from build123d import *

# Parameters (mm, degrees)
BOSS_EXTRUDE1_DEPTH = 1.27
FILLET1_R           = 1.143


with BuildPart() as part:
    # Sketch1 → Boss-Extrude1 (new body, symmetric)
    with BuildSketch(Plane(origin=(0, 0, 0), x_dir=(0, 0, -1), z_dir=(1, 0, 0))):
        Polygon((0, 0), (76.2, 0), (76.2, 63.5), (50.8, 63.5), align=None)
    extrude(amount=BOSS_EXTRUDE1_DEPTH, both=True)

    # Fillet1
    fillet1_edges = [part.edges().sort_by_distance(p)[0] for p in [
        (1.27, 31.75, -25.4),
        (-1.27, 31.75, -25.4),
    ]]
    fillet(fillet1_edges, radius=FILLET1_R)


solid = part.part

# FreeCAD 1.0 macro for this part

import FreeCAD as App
import Part
import Sketcher
Q = App.Units.Quantity


def edges_at(feature, points):
    """Names of the edges that pass closest to the given points."""
    edges = feature.Shape.Edges
    near = lambda p: min(range(len(edges)), key=lambda i: edges[i].distToShape(Part.Vertex(*p))[0])
    return sorted({f"Edge{near(p) + 1}" for p in points})

doc = App.newDocument("Part")
body = doc.addObject("PartDesign::Body", "Body")

sketch1 = body.newObject("Sketcher::SketchObject", "Sketch")
sketch1.AttachmentSupport = (doc.getObject("YZ_Plane"), [""])
sketch1.MapMode = "FlatFace"
sketch1.addGeometry([
    Part.LineSegment(App.Vector(0, 0, 0), App.Vector(0, -76.2, 0)),
    Part.LineSegment(App.Vector(0, -76.2, 0), App.Vector(63.5, -76.2, 0)),
    Part.LineSegment(App.Vector(63.5, -76.2, 0), App.Vector(63.5, -50.8, 0)),
    Part.LineSegment(App.Vector(63.5, -50.8, 0), App.Vector(0, 0, 0)),
], False)
sketch1.addConstraint([
    Sketcher.Constraint("Coincident", 0, 2, 1, 1),
    Sketcher.Constraint("Coincident", 1, 2, 2, 1),
    Sketcher.Constraint("Coincident", 2, 2, 3, 1),
    Sketcher.Constraint("Coincident", 3, 2, 0, 1),
    Sketcher.Constraint("Vertical", 0),
    Sketcher.Constraint("Horizontal", 1),
    Sketcher.Constraint("Vertical", 2),
    Sketcher.Constraint("Coincident", 3, 2, -1, 1),
    Sketcher.Constraint("DistanceY", 0, 2, 0, 1, Q("3 in")),
    Sketcher.Constraint("DistanceY", 2, 1, 2, 2, Q("1 in")),
    Sketcher.Constraint("DistanceX", 1, 1, 1, 2, Q("2.5 in")),
])
pad1 = body.newObject("PartDesign::Pad", "Pad")
pad1.Profile = sketch1
pad1.Length = Q("0.1 in")
pad1.Midplane = True
doc.recompute()

fillet = body.newObject("PartDesign::Fillet", "Fillet")
fillet.Base = (pad1, edges_at(pad1, [(1.27, 31.75, -25.4), (-1.27, 31.75, -25.4)]))
fillet.Radius = Q("0.045 in")

doc.recompute()
